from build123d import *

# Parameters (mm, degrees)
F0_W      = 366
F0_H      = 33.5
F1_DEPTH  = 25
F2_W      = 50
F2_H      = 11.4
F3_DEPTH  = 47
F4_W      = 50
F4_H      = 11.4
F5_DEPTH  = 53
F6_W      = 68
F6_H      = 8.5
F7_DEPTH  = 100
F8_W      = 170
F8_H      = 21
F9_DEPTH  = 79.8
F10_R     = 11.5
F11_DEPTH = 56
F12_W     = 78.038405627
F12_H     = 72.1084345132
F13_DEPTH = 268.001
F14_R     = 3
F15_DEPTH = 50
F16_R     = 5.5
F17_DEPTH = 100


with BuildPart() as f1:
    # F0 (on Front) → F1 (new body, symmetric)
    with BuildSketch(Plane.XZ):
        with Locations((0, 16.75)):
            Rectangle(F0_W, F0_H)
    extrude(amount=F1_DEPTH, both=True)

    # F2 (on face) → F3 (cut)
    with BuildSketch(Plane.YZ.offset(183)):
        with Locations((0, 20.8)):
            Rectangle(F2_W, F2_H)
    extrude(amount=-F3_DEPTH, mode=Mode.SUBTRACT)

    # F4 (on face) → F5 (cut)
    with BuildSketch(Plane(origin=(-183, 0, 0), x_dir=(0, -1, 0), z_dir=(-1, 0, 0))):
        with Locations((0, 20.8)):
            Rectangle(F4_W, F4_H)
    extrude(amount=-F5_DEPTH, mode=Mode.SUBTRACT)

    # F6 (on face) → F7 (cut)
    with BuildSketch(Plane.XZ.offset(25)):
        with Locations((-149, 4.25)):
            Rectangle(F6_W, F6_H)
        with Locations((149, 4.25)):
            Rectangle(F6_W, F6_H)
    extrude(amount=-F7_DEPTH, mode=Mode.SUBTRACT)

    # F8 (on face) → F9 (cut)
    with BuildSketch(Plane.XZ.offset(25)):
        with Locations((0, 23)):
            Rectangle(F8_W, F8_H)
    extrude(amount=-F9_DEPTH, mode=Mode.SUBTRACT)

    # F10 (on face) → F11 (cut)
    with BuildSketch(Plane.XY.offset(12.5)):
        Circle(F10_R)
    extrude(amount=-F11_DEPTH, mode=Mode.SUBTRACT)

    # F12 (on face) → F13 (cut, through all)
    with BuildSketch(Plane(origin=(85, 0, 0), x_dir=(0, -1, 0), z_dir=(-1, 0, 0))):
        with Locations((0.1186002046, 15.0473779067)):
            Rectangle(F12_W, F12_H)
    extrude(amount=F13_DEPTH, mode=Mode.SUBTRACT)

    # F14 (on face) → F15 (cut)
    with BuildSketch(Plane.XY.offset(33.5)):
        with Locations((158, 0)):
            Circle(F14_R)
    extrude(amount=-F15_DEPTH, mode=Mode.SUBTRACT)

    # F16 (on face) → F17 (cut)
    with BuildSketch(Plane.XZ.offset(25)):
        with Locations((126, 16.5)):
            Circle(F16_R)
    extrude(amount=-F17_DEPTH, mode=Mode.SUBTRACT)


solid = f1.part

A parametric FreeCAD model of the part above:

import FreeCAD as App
import Part
import Sketcher
from FreeCAD import Vector
Q = App.Units.Quantity

doc = App.newDocument("Part")
params = doc.addObject("Spreadsheet::Sheet", "Params")
for row, (alias, value) in enumerate([
    ("sketch1_width", "366 mm"),
    ("sketch1_height", "33.5 mm"),
    ("pad1_length", "50 mm"),
    ("sketch2_width", "50 mm"),
    ("sketch2_height", "11.4 mm"),
    ("pocket1_length", "47 mm"),
    ("sketch3_width", "50 mm"),
    ("sketch3_height", "11.4 mm"),
    ("pocket2_length", "53 mm"),
    ("sketch4_width", "68 mm"),
    ("sketch4_height", "8.5 mm"),
    ("pocket3_length", "100 mm"),
    ("sketch5_width", "170 mm"),
    ("sketch5_height", "21 mm"),
    ("pocket4_length", "79.8 mm"),
    ("sketch6_diameter", "23 mm"),
    ("pocket5_length", "56 mm"),
    ("sketch8_diameter", "6 mm"),
    ("pocket7_length", "50 mm"),
    ("sketch9_diameter", "11 mm"),
    ("pocket8_length", "100 mm"),
], start=1):
    params.set(f"A{row}", alias)
    params.set(f"B{row}", "=" + value)
    params.setAlias(f"B{row}", alias)

body = doc.addObject("PartDesign::Body", "Body")

# Sketch on XZ plane
sketch1 = body.newObject("Sketcher::SketchObject", "Sketch")
sketch1.AttachmentSupport = (doc.getObject("XZ_Plane"), [""])
sketch1.MapMode = "FlatFace"
sketch1.addGeometry([
    Part.LineSegment(Vector(-183, 33.5, 0), Vector(-183, 0, 0)),
    Part.LineSegment(Vector(-183, 0, 0), Vector(183, 0, 0)),
    Part.LineSegment(Vector(183, 0, 0), Vector(183, 33.5, 0)),
    Part.LineSegment(Vector(183, 33.5, 0), Vector(-183, 33.5, 0)),
], False)
sketch1.addConstraint([
    Sketcher.Constraint("Coincident", 0, 2, 1, 1),
    Sketcher.Constraint("Coincident", 1, 2, 2, 1),
    Sketcher.Constraint("Coincident", 2, 2, 3, 1),
    Sketcher.Constraint("Coincident", 3, 2, 0, 1),
    Sketcher.Constraint("Vertical", 0),
    Sketcher.Constraint("Horizontal", 1),
    Sketcher.Constraint("Vertical", 2),
    Sketcher.Constraint("Horizontal", 3),
    Sketcher.Constraint("Symmetric", 0, 2, 1, 2, -1, 1),
    Sketcher.Constraint("DistanceX", 1, 1, 1, 2, Q("366 mm")),
    Sketcher.Constraint("DistanceY", 0, 2, 0, 1, Q("33.5 mm")),
])
sketch1.setExpression("Constraints[9]", "Params.sketch1_width")
sketch1.setExpression("Constraints[10]", "Params.sketch1_height")
pad1 = body.newObject("PartDesign::Pad", "Pad")
pad1.Profile = sketch1
pad1.setExpression("Length", "Params.pad1_length")
pad1.Midplane = True

# Sketch on YZ plane
sketch2 = body.newObject("Sketcher::SketchObject", "Sketch001")
sketch2.AttachmentSupport = (doc.getObject("YZ_Plane"), [""])
sketch2.MapMode = "FlatFace"
sketch2.AttachmentOffset = App.Placement(Vector(0, 0, 183), App.Rotation())
sketch2.addGeometry([
    Part.LineSegment(Vector(-25, 26.5, 0), Vector(-25, 15.1, 0)),
    Part.LineSegment(Vector(-25, 15.1, 0), Vector(25, 15.1, 0)),
    Part.LineSegment(Vector(25, 15.1, 0), Vector(25, 26.5, 0)),
    Part.LineSegment(Vector(25, 26.5, 0), Vector(-25, 26.5, 0)),
], False)
sketch2.addConstraint([
    Sketcher.Constraint("Coincident", 0, 2, 1, 1),
    Sketcher.Constraint("Coincident", 1, 2, 2, 1),
    Sketcher.Constraint("Coincident", 2, 2, 3, 1),
    Sketcher.Constraint("Coincident", 3, 2, 0, 1),
    Sketcher.Constraint("Vertical", 0),
    Sketcher.Constraint("Horizontal", 1),
    Sketcher.Constraint("Vertical", 2),
    Sketcher.Constraint("Horizontal", 3),
    Sketcher.Constraint("DistanceX", 1, 1, 1, 2, Q("50 mm")),
    Sketcher.Constraint("DistanceY", 0, 2, 0, 1, Q("11.4 mm")),
    Sketcher.Constraint("DistanceX", 0, 2, -1, 1, Q("25 mm")),
    Sketcher.Constraint("DistanceY", -1, 1, 0, 2, Q("15.1 mm")),
])
sketch2.setExpression("Constraints[8]", "Params.sketch2_width")
sketch2.setExpression("Constraints[9]", "Params.sketch2_height")
pocket1 = body.newObject("PartDesign::Pocket", "Pocket")
pocket1.Profile = sketch2
pocket1.setExpression("Length", "Params.pocket1_length")

# Sketch on YZ plane
sketch3 = body.newObject("Sketcher::SketchObject", "Sketch002")
sketch3.AttachmentSupport = (doc.getObject("YZ_Plane"), [""])
sketch3.MapMode = "FlatFace"
sketch3.AttachmentOffset = App.Placement(Vector(0, 0, -183), App.Rotation())
sketch3.addGeometry([
    Part.LineSegment(Vector(25, 26.5, 0), Vector(25, 15.1, 0)),
    Part.LineSegment(Vector(25, 15.1, 0), Vector(-25, 15.1, 0)),
    Part.LineSegment(Vector(-25, 15.1, 0), Vector(-25, 26.5, 0)),
    Part.LineSegment(Vector(-25, 26.5, 0), Vector(25, 26.5, 0)),
], False)
sketch3.addConstraint([
    Sketcher.Constraint("Coincident", 0, 2, 1, 1),
    Sketcher.Constraint("Coincident", 1, 2, 2, 1),
    Sketcher.Constraint("Coincident", 2, 2, 3, 1),
    Sketcher.Constraint("Coincident", 3, 2, 0, 1),
    Sketcher.Constraint("Vertical", 0),
    Sketcher.Constraint("Horizontal", 1),
    Sketcher.Constraint("Vertical", 2),
    Sketcher.Constraint("Horizontal", 3),
    Sketcher.Constraint("DistanceX", 1, 2, 1, 1, Q("50 mm")),
    Sketcher.Constraint("DistanceY", 0, 2, 0, 1, Q("11.4 mm")),
    Sketcher.Constraint("DistanceX", -1, 1, 0, 2, Q("25 mm")),
    Sketcher.Constraint("DistanceY", -1, 1, 0, 2, Q("15.1 mm")),
])
sketch3.setExpression("Constraints[8]", "Params.sketch3_width")
sketch3.setExpression("Constraints[9]", "Params.sketch3_height")
pocket2 = body.newObject("PartDesign::Pocket", "Pocket001")
pocket2.Profile = sketch3
pocket2.setExpression("Length", "Params.pocket2_length")
pocket2.Reversed = True

# Sketch on XZ plane
sketch4 = body.newObject("Sketcher::SketchObject", "Sketch003")
sketch4.AttachmentSupport = (doc.getObject("XZ_Plane"), [""])
sketch4.MapMode = "FlatFace"
sketch4.AttachmentOffset = App.Placement(Vector(0, 0, 25), App.Rotation())
sketch4.addGeometry([
    Part.LineSegment(Vector(-183, 8.5, 0), Vector(-183, 0, 0)),  # 0
    Part.LineSegment(Vector(-183, 0, 0), Vector(-115, 0, 0)),  # 1
    Part.LineSegment(Vector(-115, 0, 0), Vector(-115, 8.5, 0)),  # 2
    Part.LineSegment(Vector(-115, 8.5, 0), Vector(-183, 8.5, 0)),  # 3
    Part.LineSegment(Vector(115, 8.5, 0), Vector(115, 0, 0)),  # 4
    Part.LineSegment(Vector(115, 0, 0), Vector(183, 0, 0)),  # 5
    Part.LineSegment(Vector(183, 0, 0), Vector(183, 8.5, 0)),  # 6
    Part.LineSegment(Vector(183, 8.5, 0), Vector(115, 8.5, 0)),  # 7
], False)
sketch4.addConstraint([
    Sketcher.Constraint("Coincident", 0, 2, 1, 1),
    Sketcher.Constraint("Coincident", 1, 2, 2, 1),
    Sketcher.Constraint("Coincident", 2, 2, 3, 1),
    Sketcher.Constraint("Coincident", 3, 2, 0, 1),
    Sketcher.Constraint("Coincident", 4, 2, 5, 1),
    Sketcher.Constraint("Coincident", 5, 2, 6, 1),
    Sketcher.Constraint("Coincident", 6, 2, 7, 1),
    Sketcher.Constraint("Coincident", 7, 2, 4, 1),
    Sketcher.Constraint("Vertical", 0),
    Sketcher.Constraint("Horizontal", 1),
    Sketcher.Constraint("Vertical", 2),
    Sketcher.Constraint("Horizontal", 3),
    Sketcher.Constraint("Vertical", 4),
    Sketcher.Constraint("Horizontal", 5),
    Sketcher.Constraint("Vertical", 6),
    Sketcher.Constraint("Horizontal", 7),
    Sketcher.Constraint("Symmetric", 1, 2, 4, 2, -1, 1),
    Sketcher.Constraint("Symmetric", 0, 2, 5, 2, -2),
    Sketcher.Constraint("Horizontal", 3, 2, 6, 2),
    Sketcher.Constraint("DistanceX", 1, 1, 1, 2, Q("68 mm")),
    Sketcher.Constraint("DistanceY", 0, 2, 0, 1, Q("8.5 mm")),
    Sketcher.Constraint("DistanceX", 0, 2, -1, 1, Q("183 mm")),
])
sketch4.setExpression("Constraints[19]", "Params.sketch4_width")
sketch4.setExpression("Constraints[20]", "Params.sketch4_height")
pocket3 = body.newObject("PartDesign::Pocket", "Pocket002")
pocket3.Profile = sketch4
pocket3.setExpression("Length", "Params.pocket3_length")

# Sketch on XZ plane
sketch5 = body.newObject("Sketcher::SketchObject", "Sketch004")
sketch5.AttachmentSupport = (doc.getObject("XZ_Plane"), [""])
sketch5.MapMode = "FlatFace"
sketch5.AttachmentOffset = App.Placement(Vector(0, 0, 25), App.Rotation())
sketch5.addGeometry([
    Part.LineSegment(Vector(-85, 33.5, 0), Vector(-85, 12.5, 0)),
    Part.LineSegment(Vector(-85, 12.5, 0), Vector(85, 12.5, 0)),
    Part.LineSegment(Vector(85, 12.5, 0), Vector(85, 33.5, 0)),
    Part.LineSegment(Vector(85, 33.5, 0), Vector(-85, 33.5, 0)),
], False)
sketch5.addConstraint([
    Sketcher.Constraint("Coincident", 0, 2, 1, 1),
    Sketcher.Constraint("Coincident", 1, 2, 2, 1),
    Sketcher.Constraint("Coincident", 2, 2, 3, 1),
    Sketcher.Constraint("Coincident", 3, 2, 0, 1),
    Sketcher.Constraint("Vertical", 0),
    Sketcher.Constraint("Horizontal", 1),
    Sketcher.Constraint("Vertical", 2),
    Sketcher.Constraint("Horizontal", 3),
    Sketcher.Constraint("DistanceX", 1, 1, 1, 2, Q("170 mm")),
    Sketcher.Constraint("DistanceY", 0, 2, 0, 1, Q("21 mm")),
    Sketcher.Constraint("DistanceX", 0, 2, -1, 1, Q("85 mm")),
    Sketcher.Constraint("DistanceY", -1, 1, 0, 2, Q("12.5 mm")),
])
sketch5.setExpression("Constraints[8]", "Params.sketch5_width")
sketch5.setExpression("Constraints[9]", "Params.sketch5_height")
pocket4 = body.newObject("PartDesign::Pocket", "Pocket003")
pocket4.Profile = sketch5
pocket4.setExpression("Length", "Params.pocket4_length")

# Sketch on XY plane
sketch6 = body.newObject("Sketcher::SketchObject", "Sketch005")
sketch6.AttachmentSupport = (doc.getObject("XY_Plane"), [""])
sketch6.MapMode = "FlatFace"
sketch6.AttachmentOffset = App.Placement(Vector(0, 0, 12.5), App.Rotation())
sketch6.addGeometry(Part.Circle(Vector(0, 0, 0), Vector(0, 0, 1), 11.5), False)
sketch6.addConstraint([
    Sketcher.Constraint("Coincident", 0, 3, -1, 1),
    Sketcher.Constraint("Diameter", 0, Q("23 mm")),
])
sketch6.setExpression("Constraints[1]", "Params.sketch6_diameter")
pocket5 = body.newObject("PartDesign::Pocket", "Pocket004")
pocket5.Profile = sketch6
pocket5.setExpression("Length", "Params.pocket5_length")

# Sketch on YZ plane
sketch7 = body.newObject("Sketcher::SketchObject", "Sketch006")
sketch7.AttachmentSupport = (doc.getObject("YZ_Plane"), [""])
sketch7.MapMode = "FlatFace"
sketch7.AttachmentOffset = App.Placement(Vector(0, 0, 85), App.Rotation())
sketch7.addGeometry([
    Part.LineSegment(Vector(38.900603, 51.101595, 0), Vector(38.900603, -21.006839, 0)),
    Part.LineSegment(Vector(38.900603, -21.006839, 0), Vector(-39.137803, -21.006839, 0)),
    Part.LineSegment(Vector(-39.137803, -21.006839, 0), Vector(-39.137803, 51.101595, 0)),
    Part.LineSegment(Vector(-39.137803, 51.101595, 0), Vector(38.900603, 51.101595, 0)),
], False)
sketch7.addConstraint([
    Sketcher.Constraint("Coincident", 0, 2, 1, 1),
    Sketcher.Constraint("Coincident", 1, 2, 2, 1),
    Sketcher.Constraint("Coincident", 2, 2, 3, 1),
    Sketcher.Constraint("Coincident", 3, 2, 0, 1),
    Sketcher.Constraint("Vertical", 0),
    Sketcher.Constraint("Horizontal", 1),
    Sketcher.Constraint("Vertical", 2),
    Sketcher.Constraint("Horizontal", 3),
    Sketcher.Constraint("DistanceX", 1, 2, 1, 1, Q("78.038406 mm")),
    Sketcher.Constraint("DistanceY", 0, 2, 0, 1, Q("72.108435 mm")),
    Sketcher.Constraint("DistanceY", 0, 2, -1, 1, Q("21.006839 mm")),
    Sketcher.Constraint("DistanceX", -1, 1, 0, 2, Q("38.900603 mm")),
])
pocket6 = body.newObject("PartDesign::Pocket", "Pocket005")
pocket6.Profile = sketch7
pocket6.Type = "ThroughAll"

# Sketch on XY plane
sketch8 = body.newObject("Sketcher::SketchObject", "Sketch007")
sketch8.AttachmentSupport = (doc.getObject("XY_Plane"), [""])
sketch8.MapMode = "FlatFace"
sketch8.AttachmentOffset = App.Placement(Vector(0, 0, 33.5), App.Rotation())
sketch8.addGeometry(Part.Circle(Vector(158, 0, 0), Vector(0, 0, 1), 3), False)
sketch8.addConstraint([
    Sketcher.Constraint("PointOnObject", 0, 3, -1),
    Sketcher.Constraint("Diameter", 0, Q("6 mm")),
    Sketcher.Constraint("DistanceX", -1, 1, 0, 3, Q("158 mm")),
])
sketch8.setExpression("Constraints[1]", "Params.sketch8_diameter")
pocket7 = body.newObject("PartDesign::Pocket", "Pocket006")
pocket7.Profile = sketch8
pocket7.setExpression("Length", "Params.pocket7_length")

# Sketch on XZ plane
sketch9 = body.newObject("Sketcher::SketchObject", "Sketch008")
sketch9.AttachmentSupport = (doc.getObject("XZ_Plane"), [""])
sketch9.MapMode = "FlatFace"
sketch9.AttachmentOffset = App.Placement(Vector(0, 0, 25), App.Rotation())
sketch9.addGeometry(Part.Circle(Vector(126, 16.5, 0), Vector(0, 0, 1), 5.5), False)
sketch9.addConstraint([
    Sketcher.Constraint("Diameter", 0, Q("11 mm")),
    Sketcher.Constraint("DistanceX", -1, 1, 0, 3, Q("126 mm")),
    Sketcher.Constraint("DistanceY", -1, 1, 0, 3, Q("16.5 mm")),
])
sketch9.setExpression("Constraints[0]", "Params.sketch9_diameter")
pocket8 = body.newObject("PartDesign::Pocket", "Pocket007")
pocket8.Profile = sketch9
pocket8.setExpression("Length", "Params.pocket8_length")

doc.recompute()
